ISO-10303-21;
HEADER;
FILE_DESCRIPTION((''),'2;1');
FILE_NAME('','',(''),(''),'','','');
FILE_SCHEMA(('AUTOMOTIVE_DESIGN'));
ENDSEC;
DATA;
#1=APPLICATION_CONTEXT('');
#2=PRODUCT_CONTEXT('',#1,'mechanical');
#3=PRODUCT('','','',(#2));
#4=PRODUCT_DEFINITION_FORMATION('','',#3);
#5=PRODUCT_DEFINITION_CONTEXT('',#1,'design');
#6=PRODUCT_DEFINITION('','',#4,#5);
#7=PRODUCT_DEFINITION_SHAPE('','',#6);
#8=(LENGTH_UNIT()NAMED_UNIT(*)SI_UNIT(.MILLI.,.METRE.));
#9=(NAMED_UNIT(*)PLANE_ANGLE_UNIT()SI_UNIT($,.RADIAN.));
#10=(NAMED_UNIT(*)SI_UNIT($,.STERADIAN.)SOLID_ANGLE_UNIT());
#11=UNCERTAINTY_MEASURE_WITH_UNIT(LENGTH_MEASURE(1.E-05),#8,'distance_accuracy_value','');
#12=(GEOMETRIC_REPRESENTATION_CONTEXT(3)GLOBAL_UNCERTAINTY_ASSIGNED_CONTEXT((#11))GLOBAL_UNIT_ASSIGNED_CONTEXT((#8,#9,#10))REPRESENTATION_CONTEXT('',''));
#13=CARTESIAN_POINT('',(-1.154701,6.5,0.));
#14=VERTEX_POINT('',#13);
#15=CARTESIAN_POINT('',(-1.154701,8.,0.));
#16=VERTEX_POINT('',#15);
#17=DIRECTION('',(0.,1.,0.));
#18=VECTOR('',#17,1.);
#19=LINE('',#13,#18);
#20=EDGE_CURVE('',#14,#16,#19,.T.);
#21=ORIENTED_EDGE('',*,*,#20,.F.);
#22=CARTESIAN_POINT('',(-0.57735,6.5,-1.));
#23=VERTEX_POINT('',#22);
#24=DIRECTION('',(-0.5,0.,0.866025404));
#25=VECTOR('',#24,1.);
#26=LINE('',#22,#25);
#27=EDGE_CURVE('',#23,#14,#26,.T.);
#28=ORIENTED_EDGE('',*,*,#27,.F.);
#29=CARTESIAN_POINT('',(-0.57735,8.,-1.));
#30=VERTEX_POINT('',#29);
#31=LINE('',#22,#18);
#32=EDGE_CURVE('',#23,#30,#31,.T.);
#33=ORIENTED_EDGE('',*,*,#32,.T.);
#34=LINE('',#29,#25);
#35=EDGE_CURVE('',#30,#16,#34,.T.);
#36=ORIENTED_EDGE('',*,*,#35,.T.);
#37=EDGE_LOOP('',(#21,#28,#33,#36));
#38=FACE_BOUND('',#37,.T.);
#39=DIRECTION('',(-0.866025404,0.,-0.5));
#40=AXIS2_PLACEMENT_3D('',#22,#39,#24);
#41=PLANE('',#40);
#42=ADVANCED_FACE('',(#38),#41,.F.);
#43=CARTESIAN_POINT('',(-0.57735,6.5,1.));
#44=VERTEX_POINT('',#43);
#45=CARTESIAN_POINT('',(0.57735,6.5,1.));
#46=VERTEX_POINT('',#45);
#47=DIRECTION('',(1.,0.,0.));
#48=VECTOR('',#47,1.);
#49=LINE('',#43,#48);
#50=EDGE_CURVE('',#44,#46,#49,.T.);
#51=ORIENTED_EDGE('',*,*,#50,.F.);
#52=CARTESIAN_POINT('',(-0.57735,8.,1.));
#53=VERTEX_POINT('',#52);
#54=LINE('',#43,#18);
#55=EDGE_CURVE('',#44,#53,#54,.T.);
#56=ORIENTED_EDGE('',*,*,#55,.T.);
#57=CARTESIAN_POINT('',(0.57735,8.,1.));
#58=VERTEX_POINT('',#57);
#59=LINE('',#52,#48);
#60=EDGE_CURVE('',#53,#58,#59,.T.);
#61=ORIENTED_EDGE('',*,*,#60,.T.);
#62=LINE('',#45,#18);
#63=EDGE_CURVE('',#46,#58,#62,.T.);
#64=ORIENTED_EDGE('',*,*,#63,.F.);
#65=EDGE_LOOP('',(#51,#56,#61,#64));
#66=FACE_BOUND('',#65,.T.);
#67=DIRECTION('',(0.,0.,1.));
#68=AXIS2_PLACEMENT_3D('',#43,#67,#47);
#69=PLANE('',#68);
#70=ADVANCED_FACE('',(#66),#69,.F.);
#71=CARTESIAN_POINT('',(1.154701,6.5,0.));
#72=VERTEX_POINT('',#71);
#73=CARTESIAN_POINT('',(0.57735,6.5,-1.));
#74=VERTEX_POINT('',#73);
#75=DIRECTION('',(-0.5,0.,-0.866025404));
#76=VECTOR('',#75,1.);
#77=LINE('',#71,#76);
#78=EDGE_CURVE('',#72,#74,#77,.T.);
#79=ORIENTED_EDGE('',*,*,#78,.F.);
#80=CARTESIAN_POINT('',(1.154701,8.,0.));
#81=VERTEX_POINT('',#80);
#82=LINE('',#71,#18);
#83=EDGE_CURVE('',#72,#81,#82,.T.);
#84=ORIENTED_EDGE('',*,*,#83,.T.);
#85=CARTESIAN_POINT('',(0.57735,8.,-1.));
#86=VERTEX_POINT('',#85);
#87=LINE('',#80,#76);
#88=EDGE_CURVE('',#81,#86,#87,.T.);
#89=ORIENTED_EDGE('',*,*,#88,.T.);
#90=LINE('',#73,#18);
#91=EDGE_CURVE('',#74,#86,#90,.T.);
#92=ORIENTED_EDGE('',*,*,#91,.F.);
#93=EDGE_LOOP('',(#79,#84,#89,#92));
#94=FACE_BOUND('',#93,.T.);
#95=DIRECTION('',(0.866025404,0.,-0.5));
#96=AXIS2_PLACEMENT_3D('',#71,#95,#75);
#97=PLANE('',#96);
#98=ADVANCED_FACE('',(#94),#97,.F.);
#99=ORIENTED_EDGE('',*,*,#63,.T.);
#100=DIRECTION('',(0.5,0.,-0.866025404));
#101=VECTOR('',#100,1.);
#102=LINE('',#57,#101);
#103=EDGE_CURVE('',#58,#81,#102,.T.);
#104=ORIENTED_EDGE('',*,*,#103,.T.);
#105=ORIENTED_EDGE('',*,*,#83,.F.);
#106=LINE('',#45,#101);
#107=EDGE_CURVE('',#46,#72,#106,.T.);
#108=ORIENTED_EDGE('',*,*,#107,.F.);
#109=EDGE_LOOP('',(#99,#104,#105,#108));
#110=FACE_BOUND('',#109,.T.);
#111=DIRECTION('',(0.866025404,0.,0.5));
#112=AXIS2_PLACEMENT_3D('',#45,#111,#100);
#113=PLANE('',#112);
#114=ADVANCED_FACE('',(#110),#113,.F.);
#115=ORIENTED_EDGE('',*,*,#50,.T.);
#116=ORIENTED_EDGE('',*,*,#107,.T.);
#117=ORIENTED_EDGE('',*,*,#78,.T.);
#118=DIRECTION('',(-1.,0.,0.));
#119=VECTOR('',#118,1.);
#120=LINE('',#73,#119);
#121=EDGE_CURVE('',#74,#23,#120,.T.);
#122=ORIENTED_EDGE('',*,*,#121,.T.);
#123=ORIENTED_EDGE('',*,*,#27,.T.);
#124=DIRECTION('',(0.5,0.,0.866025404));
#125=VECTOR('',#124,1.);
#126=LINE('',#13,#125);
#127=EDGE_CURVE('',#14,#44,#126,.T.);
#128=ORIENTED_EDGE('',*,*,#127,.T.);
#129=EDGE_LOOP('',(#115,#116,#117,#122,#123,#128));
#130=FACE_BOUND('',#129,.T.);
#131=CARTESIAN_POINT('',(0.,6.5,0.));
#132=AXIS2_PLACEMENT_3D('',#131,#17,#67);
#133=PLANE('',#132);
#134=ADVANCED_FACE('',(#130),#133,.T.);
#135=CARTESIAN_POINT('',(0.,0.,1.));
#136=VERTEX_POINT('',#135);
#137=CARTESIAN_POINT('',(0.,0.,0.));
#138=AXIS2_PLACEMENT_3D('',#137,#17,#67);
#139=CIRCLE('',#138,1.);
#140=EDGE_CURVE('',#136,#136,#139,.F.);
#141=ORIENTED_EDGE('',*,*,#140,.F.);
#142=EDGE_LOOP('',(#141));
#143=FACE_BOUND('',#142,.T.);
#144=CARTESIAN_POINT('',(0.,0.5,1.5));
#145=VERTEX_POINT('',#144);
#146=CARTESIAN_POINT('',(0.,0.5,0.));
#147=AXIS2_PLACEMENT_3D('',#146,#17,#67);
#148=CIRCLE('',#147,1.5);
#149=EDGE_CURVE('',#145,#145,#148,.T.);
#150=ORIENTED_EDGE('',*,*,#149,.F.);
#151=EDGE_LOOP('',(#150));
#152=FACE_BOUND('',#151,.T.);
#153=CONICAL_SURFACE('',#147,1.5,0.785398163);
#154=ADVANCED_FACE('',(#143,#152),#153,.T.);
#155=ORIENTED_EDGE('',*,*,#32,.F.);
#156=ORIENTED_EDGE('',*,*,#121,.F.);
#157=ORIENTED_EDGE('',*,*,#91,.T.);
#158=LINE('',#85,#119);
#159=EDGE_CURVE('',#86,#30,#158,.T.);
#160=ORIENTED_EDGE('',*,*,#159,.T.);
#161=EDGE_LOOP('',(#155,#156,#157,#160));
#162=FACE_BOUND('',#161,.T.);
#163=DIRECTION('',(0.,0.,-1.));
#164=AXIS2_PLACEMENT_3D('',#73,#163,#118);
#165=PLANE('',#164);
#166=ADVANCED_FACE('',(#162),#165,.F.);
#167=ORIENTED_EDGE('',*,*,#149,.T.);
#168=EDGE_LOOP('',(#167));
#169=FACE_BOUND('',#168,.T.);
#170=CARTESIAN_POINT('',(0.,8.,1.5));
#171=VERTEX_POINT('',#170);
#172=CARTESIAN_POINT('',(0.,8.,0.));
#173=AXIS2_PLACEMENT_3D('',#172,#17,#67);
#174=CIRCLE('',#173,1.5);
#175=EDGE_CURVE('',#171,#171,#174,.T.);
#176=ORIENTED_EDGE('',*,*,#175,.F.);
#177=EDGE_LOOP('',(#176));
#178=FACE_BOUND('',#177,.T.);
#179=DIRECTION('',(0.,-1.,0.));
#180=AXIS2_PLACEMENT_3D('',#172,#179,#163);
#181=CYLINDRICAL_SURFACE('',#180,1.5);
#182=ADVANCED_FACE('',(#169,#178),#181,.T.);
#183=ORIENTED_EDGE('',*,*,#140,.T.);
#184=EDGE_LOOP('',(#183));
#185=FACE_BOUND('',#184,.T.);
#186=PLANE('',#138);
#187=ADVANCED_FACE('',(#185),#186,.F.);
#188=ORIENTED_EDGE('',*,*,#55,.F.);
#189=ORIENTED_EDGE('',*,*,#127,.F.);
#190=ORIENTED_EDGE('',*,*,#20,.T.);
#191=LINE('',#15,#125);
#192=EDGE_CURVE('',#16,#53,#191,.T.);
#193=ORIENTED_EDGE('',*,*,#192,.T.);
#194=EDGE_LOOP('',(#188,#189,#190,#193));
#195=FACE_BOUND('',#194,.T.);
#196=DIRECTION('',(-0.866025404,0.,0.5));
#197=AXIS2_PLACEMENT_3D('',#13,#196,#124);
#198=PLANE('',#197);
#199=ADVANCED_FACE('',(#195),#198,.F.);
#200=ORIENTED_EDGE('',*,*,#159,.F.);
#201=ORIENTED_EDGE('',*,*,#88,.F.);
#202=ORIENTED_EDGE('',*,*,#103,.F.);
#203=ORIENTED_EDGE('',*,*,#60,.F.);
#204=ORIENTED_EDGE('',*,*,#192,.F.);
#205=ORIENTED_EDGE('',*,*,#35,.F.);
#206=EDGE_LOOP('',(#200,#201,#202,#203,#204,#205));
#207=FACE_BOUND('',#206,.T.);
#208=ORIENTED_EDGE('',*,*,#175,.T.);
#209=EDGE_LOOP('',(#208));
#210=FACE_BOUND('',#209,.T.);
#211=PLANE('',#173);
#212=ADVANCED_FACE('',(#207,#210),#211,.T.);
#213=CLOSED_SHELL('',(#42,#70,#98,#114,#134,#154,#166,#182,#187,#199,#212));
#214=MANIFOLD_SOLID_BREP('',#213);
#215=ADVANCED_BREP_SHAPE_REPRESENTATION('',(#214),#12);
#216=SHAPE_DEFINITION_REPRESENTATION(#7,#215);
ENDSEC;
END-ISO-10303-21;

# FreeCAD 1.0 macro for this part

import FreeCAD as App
import Part
import Sketcher
Q = App.Units.Quantity


def edges_at(feature, points):
    """Names of the edges that pass closest to the given points."""
    edges = feature.Shape.Edges
    near = lambda p: min(range(len(edges)), key=lambda i: edges[i].distToShape(Part.Vertex(*p))[0])
    return sorted({f"Edge{near(p) + 1}" for p in points})


def add_polygon(sketch, points):
    """Adds a closed chain of lines whose ends are joined by coincident constraints."""
    first, n = sketch.GeometryCount, len(points)
    for a, b in zip(points, points[1:] + points[:1]):
        sketch.addGeometry(Part.LineSegment(App.Vector(*a, 0), App.Vector(*b, 0)), False)
    for i in range(n):
        sketch.addConstraint(Sketcher.Constraint("Coincident", first + i, 2, first + (i + 1) % n, 1))

doc = App.newDocument("Part")
body = doc.addObject("PartDesign::Body", "Body")

# Sketch on XZ plane
sketch1 = body.newObject("Sketcher::SketchObject", "Sketch")
sketch1.AttachmentSupport = (doc.getObject("XZ_Plane"), [""])
sketch1.MapMode = "FlatFace"
sketch1.addGeometry(Part.Circle(App.Vector(0, 0, 0), App.Vector(0, 0, 1), 1.5), False)
sketch1.addConstraint([
    Sketcher.Constraint("Coincident", 0, 3, -1, 1),
    Sketcher.Constraint("Diameter", 0, Q("3 mm")),
])
pad1 = body.newObject("PartDesign::Pad", "Pad")
pad1.Profile = sketch1
pad1.Length = 8
pad1.Reversed = True
doc.recompute()

chamfer = body.newObject("PartDesign::Chamfer", "Chamfer")
chamfer.Base = (pad1, edges_at(pad1, [(-1.5, 0, 0)]))
chamfer.Size = 0.5

# Sketch on XZ plane
sketch2 = body.newObject("Sketcher::SketchObject", "Sketch001")
sketch2.AttachmentSupport = (doc.getObject("XZ_Plane"), [""])
sketch2.MapMode = "FlatFace"
sketch2.AttachmentOffset = App.Placement(App.Vector(0, 0, -8), App.Rotation())
add_polygon(sketch2, [(0.57735, 1), (1.154701, 0), (0.57735, -1), (-0.57735, -1), (-1.154701, 0), (-0.57735, 1)])  # lines 0-5
sketch2.addConstraint([
    Sketcher.Constraint("Horizontal", 2),
    Sketcher.Constraint("Horizontal", 5),
    Sketcher.Constraint("Symmetric", 0, 2, 3, 2, -1, 1),
    Sketcher.Constraint("Symmetric", 1, 2, 4, 2, -1, 1),
    Sketcher.Constraint("PointOnObject", 0, 2, -1),
    Sketcher.Constraint("Parallel", 0, 3),
    Sketcher.Constraint("Vertical", 2, 2, 4, 2),
    Sketcher.Constraint("Angle", 0, Q("-60 deg")),
    Sketcher.Constraint("DistanceY", 1, 2, -1, 1, Q("1 mm")),
    Sketcher.Constraint("DistanceX", 2, 2, 2, 1, Q("1.154701 mm")),
])
pocket1 = body.newObject("PartDesign::Pocket", "Pocket")
pocket1.Profile = sketch2
pocket1.Length = 1.5
pocket1.Reversed = True

doc.recompute()
